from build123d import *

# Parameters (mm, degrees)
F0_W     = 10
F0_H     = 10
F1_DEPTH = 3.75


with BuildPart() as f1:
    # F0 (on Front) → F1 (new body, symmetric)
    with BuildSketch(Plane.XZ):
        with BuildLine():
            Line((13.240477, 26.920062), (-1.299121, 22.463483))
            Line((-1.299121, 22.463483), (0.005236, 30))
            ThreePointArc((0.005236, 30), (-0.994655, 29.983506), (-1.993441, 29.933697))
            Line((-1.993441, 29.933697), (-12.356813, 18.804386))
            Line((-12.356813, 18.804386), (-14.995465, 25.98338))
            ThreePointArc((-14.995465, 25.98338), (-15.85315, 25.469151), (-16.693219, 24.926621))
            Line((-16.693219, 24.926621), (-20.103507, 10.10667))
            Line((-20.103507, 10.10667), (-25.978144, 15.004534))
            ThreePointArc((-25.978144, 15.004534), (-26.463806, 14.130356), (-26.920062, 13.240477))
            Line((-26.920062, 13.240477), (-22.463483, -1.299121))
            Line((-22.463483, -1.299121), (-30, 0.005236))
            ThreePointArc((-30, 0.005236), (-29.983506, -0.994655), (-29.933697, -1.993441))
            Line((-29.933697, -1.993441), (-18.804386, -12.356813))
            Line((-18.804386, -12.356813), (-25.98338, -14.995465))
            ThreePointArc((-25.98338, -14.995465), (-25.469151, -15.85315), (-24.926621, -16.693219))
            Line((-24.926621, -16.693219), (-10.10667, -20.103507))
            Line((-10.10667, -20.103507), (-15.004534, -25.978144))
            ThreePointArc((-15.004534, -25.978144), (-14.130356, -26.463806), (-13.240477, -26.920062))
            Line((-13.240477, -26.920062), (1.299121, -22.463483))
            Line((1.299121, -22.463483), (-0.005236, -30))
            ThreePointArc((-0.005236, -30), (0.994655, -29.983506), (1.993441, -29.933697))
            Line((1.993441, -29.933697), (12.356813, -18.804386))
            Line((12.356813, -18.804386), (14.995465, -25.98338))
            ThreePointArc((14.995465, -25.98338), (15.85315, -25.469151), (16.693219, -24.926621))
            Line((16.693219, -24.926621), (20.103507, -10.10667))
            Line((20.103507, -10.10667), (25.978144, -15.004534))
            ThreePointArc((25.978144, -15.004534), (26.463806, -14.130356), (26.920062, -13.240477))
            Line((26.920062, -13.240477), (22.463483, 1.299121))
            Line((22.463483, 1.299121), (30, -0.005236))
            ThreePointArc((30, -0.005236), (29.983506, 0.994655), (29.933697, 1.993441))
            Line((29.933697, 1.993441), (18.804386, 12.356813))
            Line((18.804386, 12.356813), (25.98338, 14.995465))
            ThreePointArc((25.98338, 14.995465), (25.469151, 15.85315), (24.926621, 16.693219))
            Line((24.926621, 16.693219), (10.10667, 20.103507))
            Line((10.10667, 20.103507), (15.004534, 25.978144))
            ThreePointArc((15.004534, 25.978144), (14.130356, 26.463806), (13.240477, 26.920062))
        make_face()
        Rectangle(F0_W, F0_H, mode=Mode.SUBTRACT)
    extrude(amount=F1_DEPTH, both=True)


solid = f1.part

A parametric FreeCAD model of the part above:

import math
import FreeCAD as App
import Part
import Sketcher

doc = App.newDocument("Part")
body = doc.addObject("PartDesign::Body", "Body")

# Sketch on XZ plane
sketch1 = body.newObject("Sketcher::SketchObject", "Sketch")
sketch1.AttachmentSupport = (doc.getObject("XZ_Plane"), [""])
sketch1.MapMode = "FlatFace"
sketch1.addGeometry(Part.LineSegment(App.Vector(13.240477, 26.920062, 0), App.Vector(-1.299121, 22.463483, 0)), False)
sketch1.addGeometry(Part.LineSegment(App.Vector(-1.299121, 22.463483, 0), App.Vector(0.005236, 30, 0)), False)
sketch1.addGeometry(Part.ArcOfCircle(Part.Circle(App.Vector(0.000055, -0.001638, 0), App.Vector(0, 0, 1), 30.001639), math.radians(89.990106), math.radians(93.809897)), False)
sketch1.addGeometry(Part.LineSegment(App.Vector(-1.993441, 29.933697, 0), App.Vector(-12.356813, 18.804386, 0)), False)
sketch1.addGeometry(Part.LineSegment(App.Vector(-12.356813, 18.804386, 0), App.Vector(-14.995465, 25.98338, 0)), False)
sketch1.addGeometry(Part.ArcOfCircle(Part.Circle(App.Vector(-0.000262, 0.000426, 0), App.Vector(0, 0, 1), 29.999501), math.radians(119.989973), math.radians(123.810037)), False)
sketch1.addGeometry(Part.LineSegment(App.Vector(-16.693219, 24.926621, 0), App.Vector(-20.103507, 10.10667, 0)), False)
sketch1.addGeometry(Part.LineSegment(App.Vector(-20.103507, 10.10667, 0), App.Vector(-25.978144, 15.004534, 0)), False)
sketch1.addGeometry(Part.ArcOfCircle(Part.Circle(App.Vector(-0.00002, 0.000021, 0), App.Vector(0, 0, 1), 29.999972), math.radians(149.990017), math.radians(153.81002)), False)
sketch1.addGeometry(Part.LineSegment(App.Vector(-26.920062, 13.240477, 0), App.Vector(-22.463483, -1.299121, 0)), False)
sketch1.addGeometry(Part.LineSegment(App.Vector(-22.463483, -1.299121, 0), App.Vector(-30, 0.005236, 0)), False)
sketch1.addGeometry(Part.ArcOfCircle(Part.Circle(App.Vector(0.001638, 0.000055, 0), App.Vector(0, 0, 1), 30.001639), math.radians(179.990106), math.radians(183.809897)), False)
sketch1.addGeometry(Part.LineSegment(App.Vector(-29.933697, -1.993441, 0), App.Vector(-18.804386, -12.356813, 0)), False)
sketch1.addGeometry(Part.LineSegment(App.Vector(-18.804386, -12.356813, 0), App.Vector(-25.98338, -14.995465, 0)), False)
sketch1.addGeometry(Part.ArcOfCircle(Part.Circle(App.Vector(-0.000426, -0.000262, 0), App.Vector(0, 0, 1), 29.999501), math.radians(-150.010027), math.radians(-146.189963)), False)
sketch1.addGeometry(Part.LineSegment(App.Vector(-24.926621, -16.693219, 0), App.Vector(-10.10667, -20.103507, 0)), False)
sketch1.addGeometry(Part.LineSegment(App.Vector(-10.10667, -20.103507, 0), App.Vector(-15.004534, -25.978144, 0)), False)
sketch1.addGeometry(Part.ArcOfCircle(Part.Circle(App.Vector(-0.000021, -0.00002, 0), App.Vector(0, 0, 1), 29.999972), math.radians(-120.009983), math.radians(-116.18998)), False)
sketch1.addGeometry(Part.LineSegment(App.Vector(-13.240477, -26.920062, 0), App.Vector(1.299121, -22.463483, 0)), False)
sketch1.addGeometry(Part.LineSegment(App.Vector(1.299121, -22.463483, 0), App.Vector(-0.005236, -30, 0)), False)
sketch1.addGeometry(Part.ArcOfCircle(Part.Circle(App.Vector(-0.000055, 0.001638, 0), App.Vector(0, 0, 1), 30.001639), math.radians(-90.009894), math.radians(-86.190103)), False)
sketch1.addGeometry(Part.LineSegment(App.Vector(1.993441, -29.933697, 0), App.Vector(12.356813, -18.804386, 0)), False)
sketch1.addGeometry(Part.LineSegment(App.Vector(12.356813, -18.804386, 0), App.Vector(14.995465, -25.98338, 0)), False)
sketch1.addGeometry(Part.ArcOfCircle(Part.Circle(App.Vector(0.000262, -0.000426, 0), App.Vector(0, 0, 1), 29.999501), math.radians(-60.010027), math.radians(-56.189963)), False)
sketch1.addGeometry(Part.LineSegment(App.Vector(16.693219, -24.926621, 0), App.Vector(20.103507, -10.10667, 0)), False)
sketch1.addGeometry(Part.LineSegment(App.Vector(20.103507, -10.10667, 0), App.Vector(25.978144, -15.004534, 0)), False)
sketch1.addGeometry(Part.ArcOfCircle(Part.Circle(App.Vector(0.00002, -0.000021, 0), App.Vector(0, 0, 1), 29.999972), math.radians(-30.009983), math.radians(-26.18998)), False)
sketch1.addGeometry(Part.LineSegment(App.Vector(26.920062, -13.240477, 0), App.Vector(22.463483, 1.299121, 0)), False)
sketch1.addGeometry(Part.LineSegment(App.Vector(22.463483, 1.299121, 0), App.Vector(30, -0.005236, 0)), False)
sketch1.addGeometry(Part.ArcOfCircle(Part.Circle(App.Vector(-0.001638, -0.000055, 0), App.Vector(0, 0, 1), 30.001639), math.radians(-0.009894), math.radians(3.809897)), False)
sketch1.addGeometry(Part.LineSegment(App.Vector(29.933697, 1.993441, 0), App.Vector(18.804386, 12.356813, 0)), False)
sketch1.addGeometry(Part.LineSegment(App.Vector(18.804386, 12.356813, 0), App.Vector(25.98338, 14.995465, 0)), False)
sketch1.addGeometry(Part.ArcOfCircle(Part.Circle(App.Vector(0.000426, 0.000262, 0), App.Vector(0, 0, 1), 29.999501), math.radians(29.989973), math.radians(33.810037)), False)
sketch1.addGeometry(Part.LineSegment(App.Vector(24.926621, 16.693219, 0), App.Vector(10.10667, 20.103507, 0)), False)
sketch1.addGeometry(Part.LineSegment(App.Vector(10.10667, 20.103507, 0), App.Vector(15.004534, 25.978144, 0)), False)
sketch1.addGeometry(Part.ArcOfCircle(Part.Circle(App.Vector(0.000021, 0.00002, 0), App.Vector(0, 0, 1), 29.999972), math.radians(59.990017), math.radians(63.81002)), False)
sketch1.addGeometry(Part.LineSegment(App.Vector(5, -5, 0), App.Vector(-5, -5, 0)), False)
sketch1.addGeometry(Part.LineSegment(App.Vector(-5, -5, 0), App.Vector(-5, 5, 0)), False)
sketch1.addGeometry(Part.LineSegment(App.Vector(-5, 5, 0), App.Vector(5, 5, 0)), False)
sketch1.addGeometry(Part.LineSegment(App.Vector(5, 5, 0), App.Vector(5, -5, 0)), False)
sketch1.addConstraint(Sketcher.Constraint("Coincident", 0, 2, 1, 1))
sketch1.addConstraint(Sketcher.Constraint("Coincident", 1, 2, 2, 1))
sketch1.addConstraint(Sketcher.Constraint("Coincident", 2, 2, 3, 1))
sketch1.addConstraint(Sketcher.Constraint("Coincident", 3, 2, 4, 1))
sketch1.addConstraint(Sketcher.Constraint("Coincident", 4, 2, 5, 1))
sketch1.addConstraint(Sketcher.Constraint("Coincident", 5, 2, 6, 1))
sketch1.addConstraint(Sketcher.Constraint("Coincident", 6, 2, 7, 1))
sketch1.addConstraint(Sketcher.Constraint("Coincident", 7, 2, 8, 1))
sketch1.addConstraint(Sketcher.Constraint("Coincident", 8, 2, 9, 1))
sketch1.addConstraint(Sketcher.Constraint("Coincident", 9, 2, 10, 1))
sketch1.addConstraint(Sketcher.Constraint("Coincident", 10, 2, 11, 1))
sketch1.addConstraint(Sketcher.Constraint("Coincident", 11, 2, 12, 1))
sketch1.addConstraint(Sketcher.Constraint("Coincident", 12, 2, 13, 1))
sketch1.addConstraint(Sketcher.Constraint("Coincident", 13, 2, 14, 1))
sketch1.addConstraint(Sketcher.Constraint("Coincident", 14, 2, 15, 1))
sketch1.addConstraint(Sketcher.Constraint("Coincident", 15, 2, 16, 1))
sketch1.addConstraint(Sketcher.Constraint("Coincident", 16, 2, 17, 1))
sketch1.addConstraint(Sketcher.Constraint("Coincident", 17, 2, 18, 1))
sketch1.addConstraint(Sketcher.Constraint("Coincident", 18, 2, 19, 1))
sketch1.addConstraint(Sketcher.Constraint("Coincident", 19, 2, 20, 1))
sketch1.addConstraint(Sketcher.Constraint("Coincident", 20, 2, 21, 1))
sketch1.addConstraint(Sketcher.Constraint("Coincident", 21, 2, 22, 1))
sketch1.addConstraint(Sketcher.Constraint("Coincident", 22, 2, 23, 1))
sketch1.addConstraint(Sketcher.Constraint("Coincident", 23, 2, 24, 1))
sketch1.addConstraint(Sketcher.Constraint("Coincident", 24, 2, 25, 1))
sketch1.addConstraint(Sketcher.Constraint("Coincident", 25, 2, 26, 1))
sketch1.addConstraint(Sketcher.Constraint("Coincident", 26, 2, 27, 1))
sketch1.addConstraint(Sketcher.Constraint("Coincident", 27, 2, 28, 1))
sketch1.addConstraint(Sketcher.Constraint("Coincident", 28, 2, 29, 1))
sketch1.addConstraint(Sketcher.Constraint("Coincident", 29, 2, 30, 1))
sketch1.addConstraint(Sketcher.Constraint("Coincident", 30, 2, 31, 1))
sketch1.addConstraint(Sketcher.Constraint("Coincident", 31, 2, 32, 1))
sketch1.addConstraint(Sketcher.Constraint("Coincident", 32, 2, 33, 1))
sketch1.addConstraint(Sketcher.Constraint("Coincident", 33, 2, 34, 1))
sketch1.addConstraint(Sketcher.Constraint("Coincident", 34, 2, 35, 1))
sketch1.addConstraint(Sketcher.Constraint("Coincident", 35, 2, 0, 1))
sketch1.addConstraint(Sketcher.Constraint("Coincident", 36, 2, 37, 1))
sketch1.addConstraint(Sketcher.Constraint("Coincident", 37, 2, 38, 1))
sketch1.addConstraint(Sketcher.Constraint("Coincident", 38, 2, 39, 1))
sketch1.addConstraint(Sketcher.Constraint("Coincident", 39, 2, 36, 1))
sketch1.addConstraint(Sketcher.Constraint("Horizontal", 36))
sketch1.addConstraint(Sketcher.Constraint("Vertical", 37))
sketch1.addConstraint(Sketcher.Constraint("Horizontal", 38))
sketch1.addConstraint(Sketcher.Constraint("Vertical", 39))
sketch1.addConstraint(Sketcher.Constraint("Equal", 2, 11))
sketch1.addConstraint(Sketcher.Constraint("Equal", 5, 14))
sketch1.addConstraint(Sketcher.Constraint("Equal", 8, 17))
sketch1.addConstraint(Sketcher.Constraint("Equal", 11, 20))
sketch1.addConstraint(Sketcher.Constraint("Equal", 14, 23))
sketch1.addConstraint(Sketcher.Constraint("Equal", 17, 26))
sketch1.addConstraint(Sketcher.Constraint("Equal", 20, 29))
sketch1.addConstraint(Sketcher.Constraint("Equal", 23, 32))
sketch1.addConstraint(Sketcher.Constraint("Equal", 26, 35))
sketch1.addConstraint(Sketcher.Constraint("Symmetric", 2, 3, 20, 3, -1, 1))
sketch1.addConstraint(Sketcher.Constraint("Symmetric", 5, 3, 23, 3, -1, 1))
sketch1.addConstraint(Sketcher.Constraint("Symmetric", 8, 3, 26, 3, -1, 1))
sketch1.addConstraint(Sketcher.Constraint("Symmetric", 11, 3, 29, 3, -1, 1))
sketch1.addConstraint(Sketcher.Constraint("Symmetric", 14, 3, 32, 3, -1, 1))
sketch1.addConstraint(Sketcher.Constraint("Symmetric", 17, 3, 35, 3, -1, 1))
sketch1.addConstraint(Sketcher.Constraint("Symmetric", 0, 2, 18, 2, -1, 1))
sketch1.addConstraint(Sketcher.Constraint("Symmetric", 3, 2, 21, 2, -1, 1))
sketch1.addConstraint(Sketcher.Constraint("Symmetric", 6, 2, 24, 2, -1, 1))
sketch1.addConstraint(Sketcher.Constraint("Symmetric", 9, 2, 27, 2, -1, 1))
sketch1.addConstraint(Sketcher.Constraint("Symmetric", 12, 2, 30, 2, -1, 1))
sketch1.addConstraint(Sketcher.Constraint("Symmetric", 15, 2, 33, 2, -1, 1))
sketch1.addConstraint(Sketcher.Constraint("Symmetric", 36, 2, 38, 2, -1, 1))
sketch1.addConstraint(Sketcher.Constraint("Symmetric", 17, 3, 26, 3, -2))
sketch1.addConstraint(Sketcher.Constraint("Perpendicular", 0, 9))
sketch1.addConstraint(Sketcher.Constraint("Perpendicular", 1, 10))
sketch1.addConstraint(Sketcher.Constraint("Perpendicular", 3, 12))
sketch1.addConstraint(Sketcher.Constraint("Perpendicular", 4, 13))
sketch1.addConstraint(Sketcher.Constraint("Perpendicular", 6, 15))
sketch1.addConstraint(Sketcher.Constraint("Perpendicular", 7, 16))
sketch1.addConstraint(Sketcher.Constraint("Perpendicular", 9, 18))
sketch1.addConstraint(Sketcher.Constraint("Perpendicular", 10, 19))
sketch1.addConstraint(Sketcher.Constraint("Perpendicular", 12, 21))
sketch1.addConstraint(Sketcher.Constraint("Perpendicular", 13, 22))
sketch1.addConstraint(Sketcher.Constraint("Perpendicular", 15, 24))
sketch1.addConstraint(Sketcher.Constraint("Perpendicular", 16, 25))
sketch1.addConstraint(Sketcher.Constraint("Perpendicular", 18, 27))
sketch1.addConstraint(Sketcher.Constraint("Perpendicular", 19, 28))
sketch1.addConstraint(Sketcher.Constraint("Perpendicular", 21, 30))
sketch1.addConstraint(Sketcher.Constraint("Perpendicular", 22, 31))
sketch1.addConstraint(Sketcher.Constraint("Perpendicular", 24, 33))
sketch1.addConstraint(Sketcher.Constraint("Perpendicular", 25, 34))
sketch1.addConstraint(Sketcher.Constraint("Equal", 38, 37))
sketch1.addConstraint(Sketcher.Constraint("Equal", 0, 3))
sketch1.addConstraint(Sketcher.Constraint("Equal", 1, 4))
sketch1.addConstraint(Sketcher.Constraint("Equal", 3, 6))
sketch1.addConstraint(Sketcher.Constraint("Equal", 4, 7))
sketch1.addConstraint(Sketcher.Constraint("Equal", 6, 9))
sketch1.addConstraint(Sketcher.Constraint("Equal", 7, 10))
sketch1.addConstraint(Sketcher.Constraint("Equal", 9, 12))
sketch1.addConstraint(Sketcher.Constraint("Equal", 10, 13))
sketch1.addConstraint(Sketcher.Constraint("Equal", 12, 15))
sketch1.addConstraint(Sketcher.Constraint("Equal", 13, 16))
sketch1.addConstraint(Sketcher.Constraint("DistanceX", 36, 2, 36, 1, 10.0))
sketch1.addConstraint(Sketcher.Constraint("DistanceY", -1, 1, 1, 2, 30.0))
sketch1.addConstraint(Sketcher.Constraint("DistanceX", 10, 2, -1, 1, 30.0))
sketch1.addConstraint(Sketcher.Constraint("Radius", 5, 29.999501))
sketch1.addConstraint(Sketcher.Constraint("Radius", 2, 30.001639))
sketch1.addConstraint(Sketcher.Constraint("Radius", 8, 29.999972))
sketch1.addConstraint(Sketcher.Constraint("DistanceX", 5, 3, 11, 3, 0.0019))
sketch1.addConstraint(Sketcher.Constraint("DistanceY", 14, 3, 20, 3, 0.0019))
sketch1.addConstraint(Sketcher.Constraint("DistanceX", 0, 2, 8, 3, 1.299101))
sketch1.addConstraint(Sketcher.Constraint("DistanceX", 4, 2, 1, 2, 15.000701))
sketch1.addConstraint(Sketcher.Constraint("DistanceY", 9, 2, 8, 2, 14.539598))
sketch1.addConstraint(Sketcher.Constraint("DistanceY", 13, 2, 10, 2, 15.000701))
sketch1.addConstraint(Sketcher.Constraint("Distance", 0, 15.207268))
sketch1.addConstraint(Sketcher.Constraint("DistanceX", 0, 2, -1, 1, 1.299121))
sketch1.addConstraint(Sketcher.Constraint("DistanceX", 2, 2, -1, 1, 1.993441))
sketch1.addConstraint(Sketcher.Constraint("DistanceY", -1, 1, 4, 2, 25.98338))
sketch1.addConstraint(Sketcher.Constraint("DistanceX", 5, 2, -1, 1, 16.693219))
sketch1.addConstraint(Sketcher.Constraint("DistanceY", -1, 1, 5, 2, 24.926621))
sketch1.addConstraint(Sketcher.Constraint("DistanceY", -1, 1, 6, 2, 10.10667))
sketch1.addConstraint(Sketcher.Constraint("DistanceY", 9, 2, -1, 1, 1.299121))
sketch1.addConstraint(Sketcher.Constraint("DistanceX", 13, 2, -1, 1, 25.98338))
sketch1.addConstraint(Sketcher.Constraint("DistanceY", 11, 3, 5, 3, 0.00037))
pad1 = body.newObject("PartDesign::Pad", "Pad")
pad1.Profile = sketch1
pad1.Length = 7.5
pad1.Midplane = True

doc.recompute()
